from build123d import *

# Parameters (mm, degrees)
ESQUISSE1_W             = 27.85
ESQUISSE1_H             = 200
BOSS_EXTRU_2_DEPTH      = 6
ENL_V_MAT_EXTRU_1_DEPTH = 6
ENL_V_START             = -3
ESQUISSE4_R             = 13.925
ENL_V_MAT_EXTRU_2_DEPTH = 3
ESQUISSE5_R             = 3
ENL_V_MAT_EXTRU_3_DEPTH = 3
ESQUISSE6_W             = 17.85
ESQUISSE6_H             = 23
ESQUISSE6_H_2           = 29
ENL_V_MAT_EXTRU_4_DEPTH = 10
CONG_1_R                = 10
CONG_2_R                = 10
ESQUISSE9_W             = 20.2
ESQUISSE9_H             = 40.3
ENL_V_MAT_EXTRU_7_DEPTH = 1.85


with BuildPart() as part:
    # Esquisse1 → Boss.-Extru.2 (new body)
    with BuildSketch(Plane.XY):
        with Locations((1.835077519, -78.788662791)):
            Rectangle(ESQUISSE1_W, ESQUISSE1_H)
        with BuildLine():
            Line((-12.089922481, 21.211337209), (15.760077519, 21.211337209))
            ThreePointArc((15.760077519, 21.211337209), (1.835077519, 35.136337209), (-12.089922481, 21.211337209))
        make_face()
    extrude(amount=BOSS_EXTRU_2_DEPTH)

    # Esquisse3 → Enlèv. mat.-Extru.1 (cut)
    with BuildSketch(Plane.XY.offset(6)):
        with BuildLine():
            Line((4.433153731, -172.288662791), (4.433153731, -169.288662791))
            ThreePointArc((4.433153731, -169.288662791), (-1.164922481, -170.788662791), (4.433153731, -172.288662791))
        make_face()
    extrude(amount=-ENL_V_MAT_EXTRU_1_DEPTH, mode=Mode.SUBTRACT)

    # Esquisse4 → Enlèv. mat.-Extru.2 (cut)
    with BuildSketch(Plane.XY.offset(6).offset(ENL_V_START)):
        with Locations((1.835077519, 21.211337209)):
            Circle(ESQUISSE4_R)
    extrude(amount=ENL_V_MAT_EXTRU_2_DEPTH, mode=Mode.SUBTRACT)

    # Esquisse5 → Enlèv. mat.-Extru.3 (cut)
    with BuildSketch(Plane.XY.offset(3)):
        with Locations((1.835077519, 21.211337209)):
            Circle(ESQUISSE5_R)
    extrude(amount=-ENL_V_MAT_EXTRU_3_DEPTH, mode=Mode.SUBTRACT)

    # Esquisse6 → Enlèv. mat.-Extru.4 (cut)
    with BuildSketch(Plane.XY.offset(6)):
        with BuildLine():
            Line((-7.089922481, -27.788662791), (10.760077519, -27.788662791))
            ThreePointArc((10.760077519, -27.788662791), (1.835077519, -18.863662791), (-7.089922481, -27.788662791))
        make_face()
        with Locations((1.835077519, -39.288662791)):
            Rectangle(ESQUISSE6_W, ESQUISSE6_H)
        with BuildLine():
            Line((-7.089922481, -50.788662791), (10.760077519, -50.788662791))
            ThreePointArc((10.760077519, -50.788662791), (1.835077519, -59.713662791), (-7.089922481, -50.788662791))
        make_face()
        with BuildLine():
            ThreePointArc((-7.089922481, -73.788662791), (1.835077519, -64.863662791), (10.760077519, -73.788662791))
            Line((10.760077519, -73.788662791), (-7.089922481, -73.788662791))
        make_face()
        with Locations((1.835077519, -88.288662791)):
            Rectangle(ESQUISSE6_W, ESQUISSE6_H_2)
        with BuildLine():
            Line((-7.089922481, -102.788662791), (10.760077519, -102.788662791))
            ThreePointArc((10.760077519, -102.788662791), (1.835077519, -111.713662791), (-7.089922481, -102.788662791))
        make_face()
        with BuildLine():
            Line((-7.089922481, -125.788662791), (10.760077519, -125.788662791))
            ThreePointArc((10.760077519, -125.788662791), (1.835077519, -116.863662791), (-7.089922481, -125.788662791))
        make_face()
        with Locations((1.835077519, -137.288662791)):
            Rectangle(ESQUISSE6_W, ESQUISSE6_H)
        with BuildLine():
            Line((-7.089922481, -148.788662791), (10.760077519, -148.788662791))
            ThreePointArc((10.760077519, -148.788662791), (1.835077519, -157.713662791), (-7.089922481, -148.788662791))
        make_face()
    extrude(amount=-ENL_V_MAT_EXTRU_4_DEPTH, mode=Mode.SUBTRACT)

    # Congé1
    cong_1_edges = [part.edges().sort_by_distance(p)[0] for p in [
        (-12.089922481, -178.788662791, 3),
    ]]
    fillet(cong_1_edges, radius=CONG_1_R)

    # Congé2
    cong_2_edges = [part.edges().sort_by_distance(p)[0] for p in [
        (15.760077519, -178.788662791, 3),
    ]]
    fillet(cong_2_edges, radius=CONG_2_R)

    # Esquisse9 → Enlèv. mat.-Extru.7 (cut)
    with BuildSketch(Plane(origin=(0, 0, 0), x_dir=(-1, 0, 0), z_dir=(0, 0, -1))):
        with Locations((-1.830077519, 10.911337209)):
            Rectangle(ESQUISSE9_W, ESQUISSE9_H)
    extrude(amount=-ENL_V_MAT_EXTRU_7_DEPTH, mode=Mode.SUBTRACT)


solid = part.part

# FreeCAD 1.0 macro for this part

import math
import FreeCAD as App
import Part
import Sketcher

V = App.Vector
Q = App.Units.Quantity


def edges_at(feature, points):
    """Names of the edges that pass closest to the given points."""
    edges = feature.Shape.Edges
    near = lambda p: min(range(len(edges)), key=lambda i: edges[i].distToShape(Part.Vertex(*p))[0])
    return sorted({f"Edge{near(p) + 1}" for p in points})

doc = App.newDocument("Part")
body = doc.addObject("PartDesign::Body", "Body")

# Sketch on XY plane
sketch1 = body.newObject("Sketcher::SketchObject", "Sketch")
sketch1.AttachmentSupport = (doc.getObject("XY_Plane"), [""])
sketch1.MapMode = "FlatFace"
sketch1.addGeometry(Part.LineSegment(V(-12, 21, 0), V(-12, -179, 0)), False)
sketch1.addGeometry(Part.LineSegment(V(-12, -179, 0), V(16, -179, 0)), False)
sketch1.addGeometry(Part.LineSegment(V(16, -179, 0), V(16, 21, 0)), False)
sketch1.addGeometry(Part.ArcOfCircle(Part.Circle(V(2, 21, 0), V(0, 0, 1), 14), math.radians(0), math.radians(180)), False)
sketch1.addConstraint(Sketcher.Constraint("Coincident", 0, 2, 1, 1))
sketch1.addConstraint(Sketcher.Constraint("Coincident", 1, 2, 2, 1))
sketch1.addConstraint(Sketcher.Constraint("Tangent", 2, 2, 3, 1))
sketch1.addConstraint(Sketcher.Constraint("Tangent", 3, 2, 0, 1))
sketch1.addConstraint(Sketcher.Constraint("Vertical", 0))
sketch1.addConstraint(Sketcher.Constraint("Horizontal", 1))
sketch1.addConstraint(Sketcher.Constraint("Vertical", 2))
sketch1.addConstraint(Sketcher.Constraint("DistanceY", 0, 2, 0, 1, Q("200 mm")))
sketch1.addConstraint(Sketcher.Constraint("Radius", 3, Q("13.925 mm")))
sketch1.addConstraint(Sketcher.Constraint("DistanceX", -1, 1, 3, 3, Q("1.835078 mm")))
sketch1.addConstraint(Sketcher.Constraint("DistanceY", -1, 1, 3, 3, Q("21.211337 mm")))
pad1 = body.newObject("PartDesign::Pad", "Pad")
pad1.Profile = sketch1
pad1.Length = 6

# Sketch on XY plane
sketch2 = body.newObject("Sketcher::SketchObject", "Sketch001")
sketch2.AttachmentSupport = (doc.getObject("XY_Plane"), [""])
sketch2.MapMode = "FlatFace"
sketch2.AttachmentOffset = App.Placement(V(0, 0, 6), App.Rotation())
sketch2.addGeometry(Part.LineSegment(V(4.4, -172.3, 0), V(4.4, -169.3, 0)), False)
sketch2.addGeometry(Part.ArcOfCircle(Part.Circle(V(1.8, -170.8, 0), V(0, 0, 1), 3), math.radians(30), math.radians(330)), False)
sketch2.addConstraint(Sketcher.Constraint("Coincident", 0, 1, 1, 2))
sketch2.addConstraint(Sketcher.Constraint("Coincident", 1, 1, 0, 2))
sketch2.addConstraint(Sketcher.Constraint("Vertical", 0))
sketch2.addConstraint(Sketcher.Constraint("Radius", 1, Q("3 mm")))
sketch2.addConstraint(Sketcher.Constraint("DistanceY", 0, 1, 0, 2, Q("3 mm")))
sketch2.addConstraint(Sketcher.Constraint("DistanceX", -1, 1, 1, 3, Q("1.835078 mm")))
sketch2.addConstraint(Sketcher.Constraint("DistanceY", 1, 3, -1, 1, Q("170.788663 mm")))
pocket1 = body.newObject("PartDesign::Pocket", "Pocket")
pocket1.Profile = sketch2
pocket1.Length = 6

# Sketch on XY plane
sketch3 = body.newObject("Sketcher::SketchObject", "Sketch002")
sketch3.AttachmentSupport = (doc.getObject("XY_Plane"), [""])
sketch3.MapMode = "FlatFace"
sketch3.AttachmentOffset = App.Placement(V(0, 0, 3), App.Rotation())
sketch3.addGeometry(Part.Circle(V(2, 21, 0), V(0, 0, 1), 14), False)
sketch3.addConstraint(Sketcher.Constraint("Diameter", 0, Q("27.85 mm")))
sketch3.addConstraint(Sketcher.Constraint("DistanceX", -1, 1, 0, 3, Q("1.835078 mm")))
sketch3.addConstraint(Sketcher.Constraint("DistanceY", -1, 1, 0, 3, Q("21.211337 mm")))
pocket2 = body.newObject("PartDesign::Pocket", "Pocket001")
pocket2.Profile = sketch3
pocket2.Length = 3
pocket2.Reversed = True

# Sketch on XY plane
sketch4 = body.newObject("Sketcher::SketchObject", "Sketch003")
sketch4.AttachmentSupport = (doc.getObject("XY_Plane"), [""])
sketch4.MapMode = "FlatFace"
sketch4.AttachmentOffset = App.Placement(V(0, 0, 3), App.Rotation())
sketch4.addGeometry(Part.Circle(V(1.8, 21.2, 0), V(0, 0, 1), 3), False)
sketch4.addConstraint(Sketcher.Constraint("Diameter", 0, Q("6 mm")))
sketch4.addConstraint(Sketcher.Constraint("DistanceX", -1, 1, 0, 3, Q("1.835078 mm")))
sketch4.addConstraint(Sketcher.Constraint("DistanceY", -1, 1, 0, 3, Q("21.211337 mm")))
pocket3 = body.newObject("PartDesign::Pocket", "Pocket002")
pocket3.Profile = sketch4
pocket3.Length = 3

# Sketch on XY plane
sketch5 = body.newObject("Sketcher::SketchObject", "Sketch004")
sketch5.AttachmentSupport = (doc.getObject("XY_Plane"), [""])
sketch5.MapMode = "FlatFace"
sketch5.AttachmentOffset = App.Placement(V(0, 0, 6), App.Rotation())
sketch5.addGeometry(Part.ArcOfCircle(Part.Circle(V(2, -28, 0), V(0, 0, 1), 9), math.radians(0), math.radians(180)), False)
sketch5.addGeometry(Part.LineSegment(V(-7, -28, 0), V(-7, -51, 0)), False)
sketch5.addGeometry(Part.ArcOfCircle(Part.Circle(V(2, -51, 0), V(0, 0, 1), 9), math.radians(180), math.radians(360)), False)
sketch5.addGeometry(Part.LineSegment(V(11, -51, 0), V(11, -28, 0)), False)
sketch5.addGeometry(Part.ArcOfCircle(Part.Circle(V(2, -74, 0), V(0, 0, 1), 9), math.radians(0), math.radians(180)), False)
sketch5.addGeometry(Part.LineSegment(V(-7, -74, 0), V(-7, -103, 0)), False)
sketch5.addGeometry(Part.ArcOfCircle(Part.Circle(V(2, -103, 0), V(0, 0, 1), 9), math.radians(180), math.radians(360)), False)
sketch5.addGeometry(Part.LineSegment(V(11, -103, 0), V(11, -74, 0)), False)
sketch5.addGeometry(Part.ArcOfCircle(Part.Circle(V(2, -126, 0), V(0, 0, 1), 9), math.radians(0), math.radians(180)), False)
sketch5.addGeometry(Part.LineSegment(V(-7, -126, 0), V(-7, -149, 0)), False)
sketch5.addGeometry(Part.ArcOfCircle(Part.Circle(V(2, -149, 0), V(0, 0, 1), 9), math.radians(180), math.radians(360)), False)
sketch5.addGeometry(Part.LineSegment(V(11, -149, 0), V(11, -126, 0)), False)
sketch5.addConstraint(Sketcher.Constraint("Tangent", 0, 2, 1, 1))
sketch5.addConstraint(Sketcher.Constraint("Tangent", 1, 2, 2, 1))
sketch5.addConstraint(Sketcher.Constraint("Tangent", 2, 2, 3, 1))
sketch5.addConstraint(Sketcher.Constraint("Tangent", 3, 2, 0, 1))
sketch5.addConstraint(Sketcher.Constraint("Tangent", 4, 2, 5, 1))
sketch5.addConstraint(Sketcher.Constraint("Tangent", 5, 2, 6, 1))
sketch5.addConstraint(Sketcher.Constraint("Tangent", 6, 2, 7, 1))
sketch5.addConstraint(Sketcher.Constraint("Tangent", 7, 2, 4, 1))
sketch5.addConstraint(Sketcher.Constraint("Tangent", 8, 2, 9, 1))
sketch5.addConstraint(Sketcher.Constraint("Tangent", 9, 2, 10, 1))
sketch5.addConstraint(Sketcher.Constraint("Tangent", 10, 2, 11, 1))
sketch5.addConstraint(Sketcher.Constraint("Tangent", 11, 2, 8, 1))
sketch5.addConstraint(Sketcher.Constraint("Vertical", 1))
sketch5.addConstraint(Sketcher.Constraint("Vertical", 3))
sketch5.addConstraint(Sketcher.Constraint("Vertical", 5))
sketch5.addConstraint(Sketcher.Constraint("Vertical", 7))
sketch5.addConstraint(Sketcher.Constraint("Vertical", 9))
sketch5.addConstraint(Sketcher.Constraint("Vertical", 11))
sketch5.addConstraint(Sketcher.Constraint("Equal", 2, 4))
sketch5.addConstraint(Sketcher.Constraint("Equal", 6, 8))
sketch5.addConstraint(Sketcher.Constraint("Vertical", 2, 3, 4, 3))
sketch5.addConstraint(Sketcher.Constraint("Vertical", 6, 3, 8, 3))
sketch5.addConstraint(Sketcher.Constraint("Equal", 3, 9))
sketch5.addConstraint(Sketcher.Constraint("DistanceY", 1, 2, 1, 1, Q("23 mm")))
sketch5.addConstraint(Sketcher.Constraint("DistanceY", 5, 2, 5, 1, Q("29 mm")))
sketch5.addConstraint(Sketcher.Constraint("Radius", 0, Q("8.925 mm")))
sketch5.addConstraint(Sketcher.Constraint("DistanceY", 4, 3, 2, 3, Q("23 mm")))
sketch5.addConstraint(Sketcher.Constraint("DistanceY", 8, 3, 6, 3, Q("23 mm")))
sketch5.addConstraint(Sketcher.Constraint("DistanceX", -1, 1, 0, 3, Q("1.835078 mm")))
sketch5.addConstraint(Sketcher.Constraint("DistanceY", 0, 3, -1, 1, Q("27.788663 mm")))
pocket4 = body.newObject("PartDesign::Pocket", "Pocket003")
pocket4.Profile = sketch5
pocket4.Length = 10
doc.recompute()

fillet = body.newObject("PartDesign::Fillet", "Fillet")
fillet.Base = (pocket4, edges_at(pocket4, [(-12.09, -178.789, 3)]))
fillet.Radius = 10
doc.recompute()

fillet2 = body.newObject("PartDesign::Fillet", "Fillet001")
fillet2.Base = (fillet, edges_at(fillet, [(15.76, -178.789, 3)]))
fillet2.Radius = 10

# Sketch on XY plane
sketch6 = body.newObject("Sketcher::SketchObject", "Sketch005")
sketch6.AttachmentSupport = (doc.getObject("XY_Plane"), [""])
sketch6.MapMode = "FlatFace"
sketch6.addGeometry(Part.LineSegment(V(12, 31, 0), V(12, -9, 0)), False)
sketch6.addGeometry(Part.LineSegment(V(12, -9, 0), V(-8, -9, 0)), False)
sketch6.addGeometry(Part.LineSegment(V(-8, -9, 0), V(-8, 31, 0)), False)
sketch6.addGeometry(Part.LineSegment(V(-8, 31, 0), V(12, 31, 0)), False)
sketch6.addConstraint(Sketcher.Constraint("Coincident", 0, 2, 1, 1))
sketch6.addConstraint(Sketcher.Constraint("Coincident", 1, 2, 2, 1))
sketch6.addConstraint(Sketcher.Constraint("Coincident", 2, 2, 3, 1))
sketch6.addConstraint(Sketcher.Constraint("Coincident", 3, 2, 0, 1))
sketch6.addConstraint(Sketcher.Constraint("Vertical", 0))
sketch6.addConstraint(Sketcher.Constraint("Horizontal", 1))
sketch6.addConstraint(Sketcher.Constraint("Vertical", 2))
sketch6.addConstraint(Sketcher.Constraint("Horizontal", 3))
sketch6.addConstraint(Sketcher.Constraint("DistanceX", 1, 2, 1, 1, Q("20.2 mm")))
sketch6.addConstraint(Sketcher.Constraint("DistanceY", 0, 2, 0, 1, Q("40.3 mm")))
sketch6.addConstraint(Sketcher.Constraint("DistanceX", -1, 1, 0, 2, Q("11.930078 mm")))
sketch6.addConstraint(Sketcher.Constraint("DistanceY", 0, 2, -1, 1, Q("9.238663 mm")))
pocket5 = body.newObject("PartDesign::Pocket", "Pocket004")
pocket5.Profile = sketch6
pocket5.Length = 1.85
pocket5.Reversed = True

doc.recompute()
